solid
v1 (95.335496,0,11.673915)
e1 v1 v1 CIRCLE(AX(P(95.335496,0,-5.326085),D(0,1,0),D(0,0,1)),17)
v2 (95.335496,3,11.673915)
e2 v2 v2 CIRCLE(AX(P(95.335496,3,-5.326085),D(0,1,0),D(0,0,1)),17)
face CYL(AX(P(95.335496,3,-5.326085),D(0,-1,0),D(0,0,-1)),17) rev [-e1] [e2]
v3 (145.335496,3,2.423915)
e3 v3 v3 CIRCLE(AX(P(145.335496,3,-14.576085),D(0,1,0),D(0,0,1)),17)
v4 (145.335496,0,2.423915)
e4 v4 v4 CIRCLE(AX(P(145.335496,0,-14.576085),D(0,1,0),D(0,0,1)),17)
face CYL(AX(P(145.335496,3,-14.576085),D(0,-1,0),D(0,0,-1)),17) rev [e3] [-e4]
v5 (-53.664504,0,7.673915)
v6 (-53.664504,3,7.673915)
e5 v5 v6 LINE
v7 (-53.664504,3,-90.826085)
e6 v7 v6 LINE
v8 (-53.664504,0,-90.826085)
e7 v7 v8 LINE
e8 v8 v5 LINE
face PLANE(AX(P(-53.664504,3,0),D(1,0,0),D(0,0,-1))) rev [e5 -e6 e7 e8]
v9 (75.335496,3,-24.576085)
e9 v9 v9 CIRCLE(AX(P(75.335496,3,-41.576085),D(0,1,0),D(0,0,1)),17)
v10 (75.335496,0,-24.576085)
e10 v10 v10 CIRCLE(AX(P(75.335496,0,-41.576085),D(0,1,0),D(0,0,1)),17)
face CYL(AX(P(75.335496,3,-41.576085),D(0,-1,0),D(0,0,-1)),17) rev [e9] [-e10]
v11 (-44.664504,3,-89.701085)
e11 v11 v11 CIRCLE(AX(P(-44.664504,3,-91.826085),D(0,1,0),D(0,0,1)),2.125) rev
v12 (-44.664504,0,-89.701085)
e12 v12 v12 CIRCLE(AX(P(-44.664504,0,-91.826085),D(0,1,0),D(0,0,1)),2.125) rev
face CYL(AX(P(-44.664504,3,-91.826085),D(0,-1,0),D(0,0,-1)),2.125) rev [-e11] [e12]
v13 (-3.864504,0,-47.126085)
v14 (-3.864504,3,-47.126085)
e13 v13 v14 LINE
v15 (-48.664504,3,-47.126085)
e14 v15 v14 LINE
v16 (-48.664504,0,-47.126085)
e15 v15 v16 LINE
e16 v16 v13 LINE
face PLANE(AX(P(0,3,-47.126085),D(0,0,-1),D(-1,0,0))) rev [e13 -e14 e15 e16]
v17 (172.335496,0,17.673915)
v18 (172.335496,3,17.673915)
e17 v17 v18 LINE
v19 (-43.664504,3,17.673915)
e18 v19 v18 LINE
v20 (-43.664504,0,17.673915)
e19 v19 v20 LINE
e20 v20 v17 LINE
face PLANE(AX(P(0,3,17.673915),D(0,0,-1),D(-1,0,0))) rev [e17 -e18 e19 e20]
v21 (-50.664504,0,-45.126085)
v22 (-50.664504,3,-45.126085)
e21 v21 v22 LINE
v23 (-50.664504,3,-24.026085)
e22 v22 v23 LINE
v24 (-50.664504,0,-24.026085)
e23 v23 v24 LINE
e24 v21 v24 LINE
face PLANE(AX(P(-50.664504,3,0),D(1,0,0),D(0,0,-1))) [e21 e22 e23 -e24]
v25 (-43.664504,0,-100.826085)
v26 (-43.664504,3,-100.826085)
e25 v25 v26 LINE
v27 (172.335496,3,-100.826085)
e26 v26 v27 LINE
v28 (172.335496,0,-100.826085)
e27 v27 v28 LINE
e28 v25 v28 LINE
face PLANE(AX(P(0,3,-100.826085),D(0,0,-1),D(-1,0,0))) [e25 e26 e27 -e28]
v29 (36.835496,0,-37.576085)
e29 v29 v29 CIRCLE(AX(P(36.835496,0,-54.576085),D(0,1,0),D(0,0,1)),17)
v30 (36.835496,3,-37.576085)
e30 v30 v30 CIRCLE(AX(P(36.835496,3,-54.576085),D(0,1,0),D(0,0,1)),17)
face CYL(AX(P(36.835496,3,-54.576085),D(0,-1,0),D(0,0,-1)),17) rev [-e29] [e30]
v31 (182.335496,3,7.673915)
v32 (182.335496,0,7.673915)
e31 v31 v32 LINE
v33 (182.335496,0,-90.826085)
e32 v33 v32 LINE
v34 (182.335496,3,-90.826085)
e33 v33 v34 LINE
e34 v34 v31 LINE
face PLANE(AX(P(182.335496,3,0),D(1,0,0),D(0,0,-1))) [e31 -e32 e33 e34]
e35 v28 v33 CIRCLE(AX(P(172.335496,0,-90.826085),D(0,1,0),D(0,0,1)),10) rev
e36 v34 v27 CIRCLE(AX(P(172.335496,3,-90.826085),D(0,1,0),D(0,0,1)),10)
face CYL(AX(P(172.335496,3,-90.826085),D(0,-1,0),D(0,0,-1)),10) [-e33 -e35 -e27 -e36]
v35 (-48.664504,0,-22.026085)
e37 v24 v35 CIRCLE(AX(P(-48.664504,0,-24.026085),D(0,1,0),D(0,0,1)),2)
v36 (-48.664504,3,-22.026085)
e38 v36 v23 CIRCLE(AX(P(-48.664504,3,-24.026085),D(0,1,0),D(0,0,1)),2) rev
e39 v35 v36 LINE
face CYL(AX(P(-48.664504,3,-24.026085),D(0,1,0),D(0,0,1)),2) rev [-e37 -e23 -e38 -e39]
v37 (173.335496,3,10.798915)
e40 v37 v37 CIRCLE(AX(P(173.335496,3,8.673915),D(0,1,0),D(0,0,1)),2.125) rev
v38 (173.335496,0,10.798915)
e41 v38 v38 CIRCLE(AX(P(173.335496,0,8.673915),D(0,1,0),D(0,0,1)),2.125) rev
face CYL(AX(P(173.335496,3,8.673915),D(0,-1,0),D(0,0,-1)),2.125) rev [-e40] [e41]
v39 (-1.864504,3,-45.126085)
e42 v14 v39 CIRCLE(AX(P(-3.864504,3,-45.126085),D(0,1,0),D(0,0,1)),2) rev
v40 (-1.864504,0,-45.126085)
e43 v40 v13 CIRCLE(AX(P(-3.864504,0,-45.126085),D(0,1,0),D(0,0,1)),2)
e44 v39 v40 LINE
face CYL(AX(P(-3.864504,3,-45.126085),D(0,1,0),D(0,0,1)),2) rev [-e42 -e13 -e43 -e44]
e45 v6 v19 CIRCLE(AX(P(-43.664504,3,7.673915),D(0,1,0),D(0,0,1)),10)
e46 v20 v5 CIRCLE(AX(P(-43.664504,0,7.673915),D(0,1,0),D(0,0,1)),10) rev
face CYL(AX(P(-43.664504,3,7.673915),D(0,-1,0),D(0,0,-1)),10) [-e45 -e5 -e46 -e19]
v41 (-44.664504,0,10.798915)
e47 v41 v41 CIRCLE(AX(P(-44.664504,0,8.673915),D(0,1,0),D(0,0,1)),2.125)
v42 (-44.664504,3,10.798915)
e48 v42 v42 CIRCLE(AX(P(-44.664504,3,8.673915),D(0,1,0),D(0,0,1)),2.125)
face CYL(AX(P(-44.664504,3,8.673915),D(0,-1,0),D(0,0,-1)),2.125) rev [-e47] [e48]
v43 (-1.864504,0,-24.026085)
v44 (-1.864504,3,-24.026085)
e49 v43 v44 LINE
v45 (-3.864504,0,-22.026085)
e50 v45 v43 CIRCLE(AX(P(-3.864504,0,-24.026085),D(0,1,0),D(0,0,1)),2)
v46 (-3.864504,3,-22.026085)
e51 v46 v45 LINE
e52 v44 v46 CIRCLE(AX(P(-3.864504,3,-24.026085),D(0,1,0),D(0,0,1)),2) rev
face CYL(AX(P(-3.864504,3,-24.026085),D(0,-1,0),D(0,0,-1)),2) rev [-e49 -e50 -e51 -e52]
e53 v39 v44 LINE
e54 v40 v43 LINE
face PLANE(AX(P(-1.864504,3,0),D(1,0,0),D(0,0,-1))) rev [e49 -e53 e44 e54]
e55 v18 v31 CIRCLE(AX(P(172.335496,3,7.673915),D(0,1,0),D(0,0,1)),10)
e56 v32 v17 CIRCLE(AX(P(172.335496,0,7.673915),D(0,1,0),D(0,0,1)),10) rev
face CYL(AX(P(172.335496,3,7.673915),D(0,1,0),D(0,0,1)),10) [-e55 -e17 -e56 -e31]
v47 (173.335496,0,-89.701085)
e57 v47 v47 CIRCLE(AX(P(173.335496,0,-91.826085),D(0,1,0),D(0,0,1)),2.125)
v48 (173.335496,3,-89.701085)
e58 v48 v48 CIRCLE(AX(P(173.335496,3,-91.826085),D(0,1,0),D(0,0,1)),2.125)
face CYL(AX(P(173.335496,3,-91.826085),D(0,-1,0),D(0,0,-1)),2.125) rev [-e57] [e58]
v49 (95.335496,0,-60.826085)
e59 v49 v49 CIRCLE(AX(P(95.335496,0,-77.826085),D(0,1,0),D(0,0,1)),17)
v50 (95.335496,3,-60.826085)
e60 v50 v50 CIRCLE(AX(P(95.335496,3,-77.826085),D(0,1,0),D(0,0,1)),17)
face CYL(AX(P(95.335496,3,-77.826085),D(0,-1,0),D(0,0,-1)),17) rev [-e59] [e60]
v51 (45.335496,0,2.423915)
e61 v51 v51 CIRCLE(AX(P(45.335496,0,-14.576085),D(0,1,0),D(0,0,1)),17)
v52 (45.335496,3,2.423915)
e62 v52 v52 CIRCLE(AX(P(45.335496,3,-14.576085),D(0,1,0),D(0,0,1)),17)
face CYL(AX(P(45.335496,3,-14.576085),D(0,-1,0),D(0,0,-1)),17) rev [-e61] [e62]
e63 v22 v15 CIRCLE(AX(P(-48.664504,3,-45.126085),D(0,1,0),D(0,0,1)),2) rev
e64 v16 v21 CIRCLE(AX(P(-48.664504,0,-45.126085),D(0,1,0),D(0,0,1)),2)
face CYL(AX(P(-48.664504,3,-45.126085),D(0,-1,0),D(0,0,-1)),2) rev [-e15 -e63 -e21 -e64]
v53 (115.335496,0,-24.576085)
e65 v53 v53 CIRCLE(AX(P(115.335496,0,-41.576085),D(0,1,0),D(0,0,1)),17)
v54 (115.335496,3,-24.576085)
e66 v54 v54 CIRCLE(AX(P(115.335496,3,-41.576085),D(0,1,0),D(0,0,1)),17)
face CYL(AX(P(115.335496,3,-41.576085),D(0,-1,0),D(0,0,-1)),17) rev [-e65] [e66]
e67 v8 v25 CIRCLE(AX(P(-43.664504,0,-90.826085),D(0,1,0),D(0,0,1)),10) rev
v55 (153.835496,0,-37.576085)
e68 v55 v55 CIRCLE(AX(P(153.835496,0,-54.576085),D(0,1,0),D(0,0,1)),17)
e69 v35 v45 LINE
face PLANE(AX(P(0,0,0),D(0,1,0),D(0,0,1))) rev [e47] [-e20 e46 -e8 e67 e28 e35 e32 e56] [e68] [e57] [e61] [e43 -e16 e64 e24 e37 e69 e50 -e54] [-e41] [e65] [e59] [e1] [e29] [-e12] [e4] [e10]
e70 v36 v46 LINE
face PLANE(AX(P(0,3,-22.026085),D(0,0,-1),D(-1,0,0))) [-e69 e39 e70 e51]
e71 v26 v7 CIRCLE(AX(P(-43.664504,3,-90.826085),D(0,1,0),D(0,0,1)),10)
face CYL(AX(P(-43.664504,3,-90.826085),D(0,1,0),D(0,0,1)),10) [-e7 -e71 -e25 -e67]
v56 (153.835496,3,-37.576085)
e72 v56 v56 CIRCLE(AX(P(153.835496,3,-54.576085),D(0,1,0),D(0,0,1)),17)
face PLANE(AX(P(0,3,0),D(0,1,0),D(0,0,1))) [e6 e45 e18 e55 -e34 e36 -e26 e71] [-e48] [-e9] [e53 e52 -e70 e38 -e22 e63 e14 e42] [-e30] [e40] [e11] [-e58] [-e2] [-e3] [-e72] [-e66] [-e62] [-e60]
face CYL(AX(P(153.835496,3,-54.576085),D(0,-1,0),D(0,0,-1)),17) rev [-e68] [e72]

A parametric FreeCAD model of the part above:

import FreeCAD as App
import Part
import Sketcher
from FreeCAD import Vector


def edges_at(feature, points):
    """Names of the edges that pass closest to the given points."""
    edges = feature.Shape.Edges
    near = lambda p: min(range(len(edges)), key=lambda i: edges[i].distToShape(Part.Vertex(*p))[0])
    return sorted({f"Edge{near(p) + 1}" for p in points})

doc = App.newDocument("Part")
params = doc.addObject("Spreadsheet::Sheet", "Params")
for row, (alias, value) in enumerate([
    ("sketch1_diameter", "34 mm"),
    ("sketch1_diameter2", "4.25 mm"),
    ("sketch1_width", "236 mm"),
    ("sketch1_width2", "48.8 mm"),
    ("sketch1_height", "118.5 mm"),
    ("pad1_length", "3 mm"),
    ("fillet_radius", "10 mm"),
    ("fillet2_radius", "2 mm"),
], start=1):
    params.set(f"A{row}", alias)
    params.set(f"B{row}", "=" + value)
    params.setAlias(f"B{row}", alias)

body = doc.addObject("PartDesign::Body", "Body")

# Sketch on XZ plane
sketch1 = body.newObject("Sketcher::SketchObject", "Sketch")
sketch1.AttachmentSupport = (doc.getObject("XZ_Plane"), [""])
sketch1.MapMode = "FlatFace"
sketch1.addGeometry([
    Part.LineSegment(Vector(-53.7, -100.8, 0), Vector(-53.7, 17.7, 0)),  # 0
    Part.LineSegment(Vector(-53.7, 17.7, 0), Vector(182.3, 17.7, 0)),  # 1
    Part.LineSegment(Vector(182.3, 17.7, 0), Vector(182.3, -100.8, 0)),  # 2
    Part.LineSegment(Vector(182.3, -100.8, 0), Vector(-53.7, -100.8, 0)),  # 3
    Part.Circle(Vector(-44.7, 8.7, 0), Vector(0, 0, 1), 2.1),  # 4
    Part.Circle(Vector(45.3, -14.6, 0), Vector(0, 0, 1), 17),  # 5
    Part.LineSegment(Vector(-1.9, -22, 0), Vector(-50.7, -22, 0)),  # 6
    Part.LineSegment(Vector(-50.7, -22, 0), Vector(-50.7, -47.1, 0)),  # 7
    Part.LineSegment(Vector(-50.7, -47.1, 0), Vector(-1.9, -47.1, 0)),  # 8
    Part.LineSegment(Vector(-1.9, -47.1, 0), Vector(-1.9, -22, 0)),  # 9
    Part.Circle(Vector(95.3, -5.3, 0), Vector(0, 0, 1), 17),  # 10
    Part.Circle(Vector(173.3, 8.7, 0), Vector(0, 0, 1), 2.1),  # 11
    Part.Circle(Vector(145.3, -14.6, 0), Vector(0, 0, 1), 17),  # 12
    Part.Circle(Vector(36.8, -54.6, 0), Vector(0, 0, 1), 17),  # 13
    Part.Circle(Vector(-44.7, -91.8, 0), Vector(0, 0, 1), 2.1),  # 14
    Part.Circle(Vector(75.3, -41.6, 0), Vector(0, 0, 1), 17),  # 15
    Part.Circle(Vector(115.3, -41.6, 0), Vector(0, 0, 1), 17),  # 16
    Part.Circle(Vector(153.8, -54.6, 0), Vector(0, 0, 1), 17),  # 17
    Part.Circle(Vector(95.3, -77.8, 0), Vector(0, 0, 1), 17),  # 18
    Part.Circle(Vector(173.3, -91.8, 0), Vector(0, 0, 1), 2.1),  # 19
], False)
sketch1.addConstraint([
    Sketcher.Constraint("Coincident", 0, 2, 1, 1),
    Sketcher.Constraint("Coincident", 1, 2, 2, 1),
    Sketcher.Constraint("Coincident", 2, 2, 3, 1),
    Sketcher.Constraint("Coincident", 3, 2, 0, 1),
    Sketcher.Constraint("Coincident", 6, 2, 7, 1),
    Sketcher.Constraint("Coincident", 7, 2, 8, 1),
    Sketcher.Constraint("Coincident", 8, 2, 9, 1),
    Sketcher.Constraint("Coincident", 9, 2, 6, 1),
    Sketcher.Constraint("Vertical", 0),
    Sketcher.Constraint("Horizontal", 1),
    Sketcher.Constraint("Vertical", 2),
    Sketcher.Constraint("Horizontal", 3),
    Sketcher.Constraint("Horizontal", 6),
    Sketcher.Constraint("Vertical", 7),
    Sketcher.Constraint("Horizontal", 8),
    Sketcher.Constraint("Vertical", 9),
    Sketcher.Constraint("Equal", 5, 10),
    Sketcher.Constraint("Equal", 4, 11),
    Sketcher.Constraint("Equal", 10, 12),
    Sketcher.Constraint("Equal", 12, 13),
    Sketcher.Constraint("Equal", 11, 14),
    Sketcher.Constraint("Equal", 13, 15),
    Sketcher.Constraint("Equal", 15, 16),
    Sketcher.Constraint("Equal", 16, 17),
    Sketcher.Constraint("Equal", 17, 18),
    Sketcher.Constraint("Equal", 14, 19),
    Sketcher.Constraint("Horizontal", 4, 3, 11, 3),
    Sketcher.Constraint("Horizontal", 5, 3, 12, 3),
    Sketcher.Constraint("Horizontal", 15, 3, 16, 3),
    Sketcher.Constraint("Horizontal", 13, 3, 17, 3),
    Sketcher.Constraint("Horizontal", 14, 3, 19, 3),
    Sketcher.Constraint("Vertical", 4, 3, 14, 3),
    Sketcher.Constraint("Vertical", 10, 3, 18, 3),
    Sketcher.Constraint("Vertical", 11, 3, 19, 3),
    Sketcher.Constraint("Diameter", 5, 34.0),
    Sketcher.Constraint("Diameter", 4, 4.25),
    Sketcher.Constraint("DistanceX", 1, 1, 1, 2, 236.0),
    Sketcher.Constraint("DistanceX", 6, 2, 6, 1, 48.8),
    Sketcher.Constraint("DistanceY", 0, 1, 0, 2, 118.5),
    Sketcher.Constraint("DistanceY", 7, 2, 7, 1, 25.1),
    Sketcher.Constraint("DistanceX", 4, 3, 5, 3, 90.0),
    Sketcher.Constraint("DistanceX", 5, 3, 10, 3, 50.0),
    Sketcher.Constraint("DistanceY", 10, 3, 4, 3, 14.0),
    Sketcher.Constraint("DistanceX", 10, 3, 11, 3, 78.0),
    Sketcher.Constraint("DistanceX", 12, 3, 11, 3, 28.0),
    Sketcher.Constraint("DistanceY", 13, 3, 5, 3, 40.0),
    Sketcher.Constraint("DistanceX", 5, 3, 15, 3, 30.0),
    Sketcher.Constraint("DistanceY", 15, 3, 5, 3, 27.0),
    Sketcher.Constraint("DistanceX", 15, 3, 16, 3, 40.0),
    Sketcher.Constraint("DistanceY", 19, 3, 18, 3, 14.0),
    Sketcher.Constraint("DistanceX", 0, 2, 4, 3, 9.0),
    Sketcher.Constraint("DistanceY", 4, 3, 0, 2, 9.0),
    Sketcher.Constraint("DistanceY", 2, 2, 19, 3, 9.0),
    Sketcher.Constraint("DistanceX", 6, 2, 4, 3, 6.0),
    Sketcher.Constraint("DistanceX", 13, 3, 5, 3, 8.5),
    Sketcher.Constraint("DistanceX", 16, 3, 17, 3, 38.5),
    Sketcher.Constraint("DistanceY", 6, 2, 4, 3, 30.7),
    Sketcher.Constraint("DistanceY", 5, 3, 4, 3, 23.25),
    Sketcher.Constraint("DistanceX", 4, 3, -1, 1, 44.664504),
    Sketcher.Constraint("DistanceY", -1, 1, 4, 3, 8.673915),
])
sketch1.setExpression("Constraints[34]", "Params.sketch1_diameter")
sketch1.setExpression("Constraints[35]", "Params.sketch1_diameter2")
sketch1.setExpression("Constraints[36]", "Params.sketch1_width")
sketch1.setExpression("Constraints[37]", "Params.sketch1_width2")
sketch1.setExpression("Constraints[38]", "Params.sketch1_height")
pad1 = body.newObject("PartDesign::Pad", "Pad")
pad1.Profile = sketch1
pad1.setExpression("Length", "Params.pad1_length")
pad1.Reversed = True
doc.recompute()

fillet = body.newObject("PartDesign::Fillet", "Fillet")
fillet.Base = (pad1, edges_at(pad1, [
    (182.335, 1.5, -100.826),
    (182.335, 1.5, 17.674),
    (-53.665, 1.5, 17.674),
    (-53.665, 1.5, -100.826),
]))
fillet.setExpression("Radius", "Params.fillet_radius")
doc.recompute()

fillet2 = body.newObject("PartDesign::Fillet", "Fillet001")
fillet2.Base = (fillet, edges_at(fillet, [
    (-50.665, 1.5, -22.026),
    (-1.865, 1.5, -22.026),
    (-1.865, 1.5, -47.126),
    (-50.665, 1.5, -47.126),
]))
fillet2.setExpression("Radius", "Params.fillet2_radius")

doc.recompute()
